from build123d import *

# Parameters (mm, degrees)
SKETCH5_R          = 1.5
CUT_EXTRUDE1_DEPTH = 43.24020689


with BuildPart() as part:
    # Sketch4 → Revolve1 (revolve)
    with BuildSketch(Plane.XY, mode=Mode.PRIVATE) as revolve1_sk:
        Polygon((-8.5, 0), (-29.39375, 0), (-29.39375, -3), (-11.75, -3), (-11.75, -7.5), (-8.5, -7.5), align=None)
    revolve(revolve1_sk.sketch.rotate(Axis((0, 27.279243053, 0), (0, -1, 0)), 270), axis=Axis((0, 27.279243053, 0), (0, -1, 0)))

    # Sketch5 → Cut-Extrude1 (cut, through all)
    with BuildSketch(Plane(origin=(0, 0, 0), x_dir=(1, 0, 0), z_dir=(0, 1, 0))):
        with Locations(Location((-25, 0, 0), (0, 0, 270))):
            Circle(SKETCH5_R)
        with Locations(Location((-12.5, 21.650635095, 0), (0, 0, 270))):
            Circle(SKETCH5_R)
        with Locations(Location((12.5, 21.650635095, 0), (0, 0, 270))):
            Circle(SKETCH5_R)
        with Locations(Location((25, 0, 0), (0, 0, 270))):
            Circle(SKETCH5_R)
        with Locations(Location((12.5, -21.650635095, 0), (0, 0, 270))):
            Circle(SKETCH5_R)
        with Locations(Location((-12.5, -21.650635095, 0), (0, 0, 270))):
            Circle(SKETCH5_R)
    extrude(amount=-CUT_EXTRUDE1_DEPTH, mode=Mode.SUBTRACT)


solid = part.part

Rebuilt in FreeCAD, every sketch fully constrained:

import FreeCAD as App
import Part
import Sketcher

V = App.Vector
Q = App.Units.Quantity


def add_polygon(sketch, points):
    """Adds a closed chain of lines whose ends are joined by coincident constraints."""
    first, n = sketch.GeometryCount, len(points)
    for a, b in zip(points, points[1:] + points[:1]):
        sketch.addGeometry(Part.LineSegment(App.Vector(*a, 0), App.Vector(*b, 0)), False)
    for i in range(n):
        sketch.addConstraint(Sketcher.Constraint("Coincident", first + i, 2, first + (i + 1) % n, 1))

doc = App.newDocument("Part")
body = doc.addObject("PartDesign::Body", "Body")

sketch1 = body.newObject("Sketcher::SketchObject", "Sketch")
sketch1.AttachmentSupport = (doc.getObject("XY_Plane"), [""])
sketch1.MapMode = "FlatFace"
add_polygon(sketch1, [(-8.5, 0), (-29.4, 0), (-29.4, -3), (-11.8, -3), (-11.8, -7.5), (-8.5, -7.5)])
sketch1.addConstraint([
    Sketcher.Constraint("Horizontal", 0),
    Sketcher.Constraint("Vertical", 1),
    Sketcher.Constraint("Horizontal", 2),
    Sketcher.Constraint("Vertical", 3),
    Sketcher.Constraint("Horizontal", 4),
    Sketcher.Constraint("Vertical", 5),
    Sketcher.Constraint("PointOnObject", 0, 2, -1),
    Sketcher.Constraint("DistanceY", 1, 2, 1, 1, Q("3 mm")),
    Sketcher.Constraint("DistanceY", 3, 2, 3, 1, Q("4.5 mm")),
    Sketcher.Constraint("DistanceX", 4, 1, 4, 2, Q("3.25 mm")),
    Sketcher.Constraint("DistanceX", 4, 2, -1, 1, Q("8.5 mm")),
    Sketcher.Constraint("DistanceX", 0, 2, 0, 1, Q("20.89375 mm")),
])
revolution = body.newObject("PartDesign::Revolution", "Revolution")
revolution.Profile = sketch1
revolution.ReferenceAxis = (sketch1, ["V_Axis"])
revolution.Angle = 360

sketch2 = body.newObject("Sketcher::SketchObject", "Sketch001")
sketch2.AttachmentSupport = (doc.getObject("XZ_Plane"), [""])
sketch2.MapMode = "FlatFace"
sketch2.addGeometry([
    Part.Circle(V(-25, 0, 0), V(0, 0, 1), 1.5),
    Part.Circle(V(-12.5, -21.7, 0), V(0, 0, 1), 1.5),
    Part.Circle(V(12.5, -21.7, 0), V(0, 0, 1), 1.5),
    Part.Circle(V(25, 0, 0), V(0, 0, 1), 1.5),
    Part.Circle(V(12.5, 21.7, 0), V(0, 0, 1), 1.5),
    Part.Circle(V(-12.5, 21.7, 0), V(0, 0, 1), 1.5),
], False)
sketch2.addConstraint([
    Sketcher.Constraint("Equal", 0, 1),
    Sketcher.Constraint("Equal", 1, 2),
    Sketcher.Constraint("Equal", 2, 3),
    Sketcher.Constraint("Equal", 3, 4),
    Sketcher.Constraint("Equal", 4, 5),
    Sketcher.Constraint("Symmetric", 0, 3, 3, 3, -1, 1),
    Sketcher.Constraint("Symmetric", 1, 3, 4, 3, -1, 1),
    Sketcher.Constraint("Symmetric", 2, 3, 5, 3, -1, 1),
    Sketcher.Constraint("Symmetric", 1, 3, 2, 3, -2),
    Sketcher.Constraint("PointOnObject", 0, 3, -1),
    Sketcher.Constraint("Diameter", 0, Q("3 mm")),
    Sketcher.Constraint("DistanceX", 0, 3, -1, 1, Q("25 mm")),
    Sketcher.Constraint("DistanceX", 1, 3, 2, 3, Q("25 mm")),
    Sketcher.Constraint("DistanceY", 2, 3, 4, 3, Q("43.30127 mm")),
])
pocket1 = body.newObject("PartDesign::Pocket", "Pocket")
pocket1.Profile = sketch2
pocket1.Type = "ThroughAll"
pocket1.Reversed = True

doc.recompute()
